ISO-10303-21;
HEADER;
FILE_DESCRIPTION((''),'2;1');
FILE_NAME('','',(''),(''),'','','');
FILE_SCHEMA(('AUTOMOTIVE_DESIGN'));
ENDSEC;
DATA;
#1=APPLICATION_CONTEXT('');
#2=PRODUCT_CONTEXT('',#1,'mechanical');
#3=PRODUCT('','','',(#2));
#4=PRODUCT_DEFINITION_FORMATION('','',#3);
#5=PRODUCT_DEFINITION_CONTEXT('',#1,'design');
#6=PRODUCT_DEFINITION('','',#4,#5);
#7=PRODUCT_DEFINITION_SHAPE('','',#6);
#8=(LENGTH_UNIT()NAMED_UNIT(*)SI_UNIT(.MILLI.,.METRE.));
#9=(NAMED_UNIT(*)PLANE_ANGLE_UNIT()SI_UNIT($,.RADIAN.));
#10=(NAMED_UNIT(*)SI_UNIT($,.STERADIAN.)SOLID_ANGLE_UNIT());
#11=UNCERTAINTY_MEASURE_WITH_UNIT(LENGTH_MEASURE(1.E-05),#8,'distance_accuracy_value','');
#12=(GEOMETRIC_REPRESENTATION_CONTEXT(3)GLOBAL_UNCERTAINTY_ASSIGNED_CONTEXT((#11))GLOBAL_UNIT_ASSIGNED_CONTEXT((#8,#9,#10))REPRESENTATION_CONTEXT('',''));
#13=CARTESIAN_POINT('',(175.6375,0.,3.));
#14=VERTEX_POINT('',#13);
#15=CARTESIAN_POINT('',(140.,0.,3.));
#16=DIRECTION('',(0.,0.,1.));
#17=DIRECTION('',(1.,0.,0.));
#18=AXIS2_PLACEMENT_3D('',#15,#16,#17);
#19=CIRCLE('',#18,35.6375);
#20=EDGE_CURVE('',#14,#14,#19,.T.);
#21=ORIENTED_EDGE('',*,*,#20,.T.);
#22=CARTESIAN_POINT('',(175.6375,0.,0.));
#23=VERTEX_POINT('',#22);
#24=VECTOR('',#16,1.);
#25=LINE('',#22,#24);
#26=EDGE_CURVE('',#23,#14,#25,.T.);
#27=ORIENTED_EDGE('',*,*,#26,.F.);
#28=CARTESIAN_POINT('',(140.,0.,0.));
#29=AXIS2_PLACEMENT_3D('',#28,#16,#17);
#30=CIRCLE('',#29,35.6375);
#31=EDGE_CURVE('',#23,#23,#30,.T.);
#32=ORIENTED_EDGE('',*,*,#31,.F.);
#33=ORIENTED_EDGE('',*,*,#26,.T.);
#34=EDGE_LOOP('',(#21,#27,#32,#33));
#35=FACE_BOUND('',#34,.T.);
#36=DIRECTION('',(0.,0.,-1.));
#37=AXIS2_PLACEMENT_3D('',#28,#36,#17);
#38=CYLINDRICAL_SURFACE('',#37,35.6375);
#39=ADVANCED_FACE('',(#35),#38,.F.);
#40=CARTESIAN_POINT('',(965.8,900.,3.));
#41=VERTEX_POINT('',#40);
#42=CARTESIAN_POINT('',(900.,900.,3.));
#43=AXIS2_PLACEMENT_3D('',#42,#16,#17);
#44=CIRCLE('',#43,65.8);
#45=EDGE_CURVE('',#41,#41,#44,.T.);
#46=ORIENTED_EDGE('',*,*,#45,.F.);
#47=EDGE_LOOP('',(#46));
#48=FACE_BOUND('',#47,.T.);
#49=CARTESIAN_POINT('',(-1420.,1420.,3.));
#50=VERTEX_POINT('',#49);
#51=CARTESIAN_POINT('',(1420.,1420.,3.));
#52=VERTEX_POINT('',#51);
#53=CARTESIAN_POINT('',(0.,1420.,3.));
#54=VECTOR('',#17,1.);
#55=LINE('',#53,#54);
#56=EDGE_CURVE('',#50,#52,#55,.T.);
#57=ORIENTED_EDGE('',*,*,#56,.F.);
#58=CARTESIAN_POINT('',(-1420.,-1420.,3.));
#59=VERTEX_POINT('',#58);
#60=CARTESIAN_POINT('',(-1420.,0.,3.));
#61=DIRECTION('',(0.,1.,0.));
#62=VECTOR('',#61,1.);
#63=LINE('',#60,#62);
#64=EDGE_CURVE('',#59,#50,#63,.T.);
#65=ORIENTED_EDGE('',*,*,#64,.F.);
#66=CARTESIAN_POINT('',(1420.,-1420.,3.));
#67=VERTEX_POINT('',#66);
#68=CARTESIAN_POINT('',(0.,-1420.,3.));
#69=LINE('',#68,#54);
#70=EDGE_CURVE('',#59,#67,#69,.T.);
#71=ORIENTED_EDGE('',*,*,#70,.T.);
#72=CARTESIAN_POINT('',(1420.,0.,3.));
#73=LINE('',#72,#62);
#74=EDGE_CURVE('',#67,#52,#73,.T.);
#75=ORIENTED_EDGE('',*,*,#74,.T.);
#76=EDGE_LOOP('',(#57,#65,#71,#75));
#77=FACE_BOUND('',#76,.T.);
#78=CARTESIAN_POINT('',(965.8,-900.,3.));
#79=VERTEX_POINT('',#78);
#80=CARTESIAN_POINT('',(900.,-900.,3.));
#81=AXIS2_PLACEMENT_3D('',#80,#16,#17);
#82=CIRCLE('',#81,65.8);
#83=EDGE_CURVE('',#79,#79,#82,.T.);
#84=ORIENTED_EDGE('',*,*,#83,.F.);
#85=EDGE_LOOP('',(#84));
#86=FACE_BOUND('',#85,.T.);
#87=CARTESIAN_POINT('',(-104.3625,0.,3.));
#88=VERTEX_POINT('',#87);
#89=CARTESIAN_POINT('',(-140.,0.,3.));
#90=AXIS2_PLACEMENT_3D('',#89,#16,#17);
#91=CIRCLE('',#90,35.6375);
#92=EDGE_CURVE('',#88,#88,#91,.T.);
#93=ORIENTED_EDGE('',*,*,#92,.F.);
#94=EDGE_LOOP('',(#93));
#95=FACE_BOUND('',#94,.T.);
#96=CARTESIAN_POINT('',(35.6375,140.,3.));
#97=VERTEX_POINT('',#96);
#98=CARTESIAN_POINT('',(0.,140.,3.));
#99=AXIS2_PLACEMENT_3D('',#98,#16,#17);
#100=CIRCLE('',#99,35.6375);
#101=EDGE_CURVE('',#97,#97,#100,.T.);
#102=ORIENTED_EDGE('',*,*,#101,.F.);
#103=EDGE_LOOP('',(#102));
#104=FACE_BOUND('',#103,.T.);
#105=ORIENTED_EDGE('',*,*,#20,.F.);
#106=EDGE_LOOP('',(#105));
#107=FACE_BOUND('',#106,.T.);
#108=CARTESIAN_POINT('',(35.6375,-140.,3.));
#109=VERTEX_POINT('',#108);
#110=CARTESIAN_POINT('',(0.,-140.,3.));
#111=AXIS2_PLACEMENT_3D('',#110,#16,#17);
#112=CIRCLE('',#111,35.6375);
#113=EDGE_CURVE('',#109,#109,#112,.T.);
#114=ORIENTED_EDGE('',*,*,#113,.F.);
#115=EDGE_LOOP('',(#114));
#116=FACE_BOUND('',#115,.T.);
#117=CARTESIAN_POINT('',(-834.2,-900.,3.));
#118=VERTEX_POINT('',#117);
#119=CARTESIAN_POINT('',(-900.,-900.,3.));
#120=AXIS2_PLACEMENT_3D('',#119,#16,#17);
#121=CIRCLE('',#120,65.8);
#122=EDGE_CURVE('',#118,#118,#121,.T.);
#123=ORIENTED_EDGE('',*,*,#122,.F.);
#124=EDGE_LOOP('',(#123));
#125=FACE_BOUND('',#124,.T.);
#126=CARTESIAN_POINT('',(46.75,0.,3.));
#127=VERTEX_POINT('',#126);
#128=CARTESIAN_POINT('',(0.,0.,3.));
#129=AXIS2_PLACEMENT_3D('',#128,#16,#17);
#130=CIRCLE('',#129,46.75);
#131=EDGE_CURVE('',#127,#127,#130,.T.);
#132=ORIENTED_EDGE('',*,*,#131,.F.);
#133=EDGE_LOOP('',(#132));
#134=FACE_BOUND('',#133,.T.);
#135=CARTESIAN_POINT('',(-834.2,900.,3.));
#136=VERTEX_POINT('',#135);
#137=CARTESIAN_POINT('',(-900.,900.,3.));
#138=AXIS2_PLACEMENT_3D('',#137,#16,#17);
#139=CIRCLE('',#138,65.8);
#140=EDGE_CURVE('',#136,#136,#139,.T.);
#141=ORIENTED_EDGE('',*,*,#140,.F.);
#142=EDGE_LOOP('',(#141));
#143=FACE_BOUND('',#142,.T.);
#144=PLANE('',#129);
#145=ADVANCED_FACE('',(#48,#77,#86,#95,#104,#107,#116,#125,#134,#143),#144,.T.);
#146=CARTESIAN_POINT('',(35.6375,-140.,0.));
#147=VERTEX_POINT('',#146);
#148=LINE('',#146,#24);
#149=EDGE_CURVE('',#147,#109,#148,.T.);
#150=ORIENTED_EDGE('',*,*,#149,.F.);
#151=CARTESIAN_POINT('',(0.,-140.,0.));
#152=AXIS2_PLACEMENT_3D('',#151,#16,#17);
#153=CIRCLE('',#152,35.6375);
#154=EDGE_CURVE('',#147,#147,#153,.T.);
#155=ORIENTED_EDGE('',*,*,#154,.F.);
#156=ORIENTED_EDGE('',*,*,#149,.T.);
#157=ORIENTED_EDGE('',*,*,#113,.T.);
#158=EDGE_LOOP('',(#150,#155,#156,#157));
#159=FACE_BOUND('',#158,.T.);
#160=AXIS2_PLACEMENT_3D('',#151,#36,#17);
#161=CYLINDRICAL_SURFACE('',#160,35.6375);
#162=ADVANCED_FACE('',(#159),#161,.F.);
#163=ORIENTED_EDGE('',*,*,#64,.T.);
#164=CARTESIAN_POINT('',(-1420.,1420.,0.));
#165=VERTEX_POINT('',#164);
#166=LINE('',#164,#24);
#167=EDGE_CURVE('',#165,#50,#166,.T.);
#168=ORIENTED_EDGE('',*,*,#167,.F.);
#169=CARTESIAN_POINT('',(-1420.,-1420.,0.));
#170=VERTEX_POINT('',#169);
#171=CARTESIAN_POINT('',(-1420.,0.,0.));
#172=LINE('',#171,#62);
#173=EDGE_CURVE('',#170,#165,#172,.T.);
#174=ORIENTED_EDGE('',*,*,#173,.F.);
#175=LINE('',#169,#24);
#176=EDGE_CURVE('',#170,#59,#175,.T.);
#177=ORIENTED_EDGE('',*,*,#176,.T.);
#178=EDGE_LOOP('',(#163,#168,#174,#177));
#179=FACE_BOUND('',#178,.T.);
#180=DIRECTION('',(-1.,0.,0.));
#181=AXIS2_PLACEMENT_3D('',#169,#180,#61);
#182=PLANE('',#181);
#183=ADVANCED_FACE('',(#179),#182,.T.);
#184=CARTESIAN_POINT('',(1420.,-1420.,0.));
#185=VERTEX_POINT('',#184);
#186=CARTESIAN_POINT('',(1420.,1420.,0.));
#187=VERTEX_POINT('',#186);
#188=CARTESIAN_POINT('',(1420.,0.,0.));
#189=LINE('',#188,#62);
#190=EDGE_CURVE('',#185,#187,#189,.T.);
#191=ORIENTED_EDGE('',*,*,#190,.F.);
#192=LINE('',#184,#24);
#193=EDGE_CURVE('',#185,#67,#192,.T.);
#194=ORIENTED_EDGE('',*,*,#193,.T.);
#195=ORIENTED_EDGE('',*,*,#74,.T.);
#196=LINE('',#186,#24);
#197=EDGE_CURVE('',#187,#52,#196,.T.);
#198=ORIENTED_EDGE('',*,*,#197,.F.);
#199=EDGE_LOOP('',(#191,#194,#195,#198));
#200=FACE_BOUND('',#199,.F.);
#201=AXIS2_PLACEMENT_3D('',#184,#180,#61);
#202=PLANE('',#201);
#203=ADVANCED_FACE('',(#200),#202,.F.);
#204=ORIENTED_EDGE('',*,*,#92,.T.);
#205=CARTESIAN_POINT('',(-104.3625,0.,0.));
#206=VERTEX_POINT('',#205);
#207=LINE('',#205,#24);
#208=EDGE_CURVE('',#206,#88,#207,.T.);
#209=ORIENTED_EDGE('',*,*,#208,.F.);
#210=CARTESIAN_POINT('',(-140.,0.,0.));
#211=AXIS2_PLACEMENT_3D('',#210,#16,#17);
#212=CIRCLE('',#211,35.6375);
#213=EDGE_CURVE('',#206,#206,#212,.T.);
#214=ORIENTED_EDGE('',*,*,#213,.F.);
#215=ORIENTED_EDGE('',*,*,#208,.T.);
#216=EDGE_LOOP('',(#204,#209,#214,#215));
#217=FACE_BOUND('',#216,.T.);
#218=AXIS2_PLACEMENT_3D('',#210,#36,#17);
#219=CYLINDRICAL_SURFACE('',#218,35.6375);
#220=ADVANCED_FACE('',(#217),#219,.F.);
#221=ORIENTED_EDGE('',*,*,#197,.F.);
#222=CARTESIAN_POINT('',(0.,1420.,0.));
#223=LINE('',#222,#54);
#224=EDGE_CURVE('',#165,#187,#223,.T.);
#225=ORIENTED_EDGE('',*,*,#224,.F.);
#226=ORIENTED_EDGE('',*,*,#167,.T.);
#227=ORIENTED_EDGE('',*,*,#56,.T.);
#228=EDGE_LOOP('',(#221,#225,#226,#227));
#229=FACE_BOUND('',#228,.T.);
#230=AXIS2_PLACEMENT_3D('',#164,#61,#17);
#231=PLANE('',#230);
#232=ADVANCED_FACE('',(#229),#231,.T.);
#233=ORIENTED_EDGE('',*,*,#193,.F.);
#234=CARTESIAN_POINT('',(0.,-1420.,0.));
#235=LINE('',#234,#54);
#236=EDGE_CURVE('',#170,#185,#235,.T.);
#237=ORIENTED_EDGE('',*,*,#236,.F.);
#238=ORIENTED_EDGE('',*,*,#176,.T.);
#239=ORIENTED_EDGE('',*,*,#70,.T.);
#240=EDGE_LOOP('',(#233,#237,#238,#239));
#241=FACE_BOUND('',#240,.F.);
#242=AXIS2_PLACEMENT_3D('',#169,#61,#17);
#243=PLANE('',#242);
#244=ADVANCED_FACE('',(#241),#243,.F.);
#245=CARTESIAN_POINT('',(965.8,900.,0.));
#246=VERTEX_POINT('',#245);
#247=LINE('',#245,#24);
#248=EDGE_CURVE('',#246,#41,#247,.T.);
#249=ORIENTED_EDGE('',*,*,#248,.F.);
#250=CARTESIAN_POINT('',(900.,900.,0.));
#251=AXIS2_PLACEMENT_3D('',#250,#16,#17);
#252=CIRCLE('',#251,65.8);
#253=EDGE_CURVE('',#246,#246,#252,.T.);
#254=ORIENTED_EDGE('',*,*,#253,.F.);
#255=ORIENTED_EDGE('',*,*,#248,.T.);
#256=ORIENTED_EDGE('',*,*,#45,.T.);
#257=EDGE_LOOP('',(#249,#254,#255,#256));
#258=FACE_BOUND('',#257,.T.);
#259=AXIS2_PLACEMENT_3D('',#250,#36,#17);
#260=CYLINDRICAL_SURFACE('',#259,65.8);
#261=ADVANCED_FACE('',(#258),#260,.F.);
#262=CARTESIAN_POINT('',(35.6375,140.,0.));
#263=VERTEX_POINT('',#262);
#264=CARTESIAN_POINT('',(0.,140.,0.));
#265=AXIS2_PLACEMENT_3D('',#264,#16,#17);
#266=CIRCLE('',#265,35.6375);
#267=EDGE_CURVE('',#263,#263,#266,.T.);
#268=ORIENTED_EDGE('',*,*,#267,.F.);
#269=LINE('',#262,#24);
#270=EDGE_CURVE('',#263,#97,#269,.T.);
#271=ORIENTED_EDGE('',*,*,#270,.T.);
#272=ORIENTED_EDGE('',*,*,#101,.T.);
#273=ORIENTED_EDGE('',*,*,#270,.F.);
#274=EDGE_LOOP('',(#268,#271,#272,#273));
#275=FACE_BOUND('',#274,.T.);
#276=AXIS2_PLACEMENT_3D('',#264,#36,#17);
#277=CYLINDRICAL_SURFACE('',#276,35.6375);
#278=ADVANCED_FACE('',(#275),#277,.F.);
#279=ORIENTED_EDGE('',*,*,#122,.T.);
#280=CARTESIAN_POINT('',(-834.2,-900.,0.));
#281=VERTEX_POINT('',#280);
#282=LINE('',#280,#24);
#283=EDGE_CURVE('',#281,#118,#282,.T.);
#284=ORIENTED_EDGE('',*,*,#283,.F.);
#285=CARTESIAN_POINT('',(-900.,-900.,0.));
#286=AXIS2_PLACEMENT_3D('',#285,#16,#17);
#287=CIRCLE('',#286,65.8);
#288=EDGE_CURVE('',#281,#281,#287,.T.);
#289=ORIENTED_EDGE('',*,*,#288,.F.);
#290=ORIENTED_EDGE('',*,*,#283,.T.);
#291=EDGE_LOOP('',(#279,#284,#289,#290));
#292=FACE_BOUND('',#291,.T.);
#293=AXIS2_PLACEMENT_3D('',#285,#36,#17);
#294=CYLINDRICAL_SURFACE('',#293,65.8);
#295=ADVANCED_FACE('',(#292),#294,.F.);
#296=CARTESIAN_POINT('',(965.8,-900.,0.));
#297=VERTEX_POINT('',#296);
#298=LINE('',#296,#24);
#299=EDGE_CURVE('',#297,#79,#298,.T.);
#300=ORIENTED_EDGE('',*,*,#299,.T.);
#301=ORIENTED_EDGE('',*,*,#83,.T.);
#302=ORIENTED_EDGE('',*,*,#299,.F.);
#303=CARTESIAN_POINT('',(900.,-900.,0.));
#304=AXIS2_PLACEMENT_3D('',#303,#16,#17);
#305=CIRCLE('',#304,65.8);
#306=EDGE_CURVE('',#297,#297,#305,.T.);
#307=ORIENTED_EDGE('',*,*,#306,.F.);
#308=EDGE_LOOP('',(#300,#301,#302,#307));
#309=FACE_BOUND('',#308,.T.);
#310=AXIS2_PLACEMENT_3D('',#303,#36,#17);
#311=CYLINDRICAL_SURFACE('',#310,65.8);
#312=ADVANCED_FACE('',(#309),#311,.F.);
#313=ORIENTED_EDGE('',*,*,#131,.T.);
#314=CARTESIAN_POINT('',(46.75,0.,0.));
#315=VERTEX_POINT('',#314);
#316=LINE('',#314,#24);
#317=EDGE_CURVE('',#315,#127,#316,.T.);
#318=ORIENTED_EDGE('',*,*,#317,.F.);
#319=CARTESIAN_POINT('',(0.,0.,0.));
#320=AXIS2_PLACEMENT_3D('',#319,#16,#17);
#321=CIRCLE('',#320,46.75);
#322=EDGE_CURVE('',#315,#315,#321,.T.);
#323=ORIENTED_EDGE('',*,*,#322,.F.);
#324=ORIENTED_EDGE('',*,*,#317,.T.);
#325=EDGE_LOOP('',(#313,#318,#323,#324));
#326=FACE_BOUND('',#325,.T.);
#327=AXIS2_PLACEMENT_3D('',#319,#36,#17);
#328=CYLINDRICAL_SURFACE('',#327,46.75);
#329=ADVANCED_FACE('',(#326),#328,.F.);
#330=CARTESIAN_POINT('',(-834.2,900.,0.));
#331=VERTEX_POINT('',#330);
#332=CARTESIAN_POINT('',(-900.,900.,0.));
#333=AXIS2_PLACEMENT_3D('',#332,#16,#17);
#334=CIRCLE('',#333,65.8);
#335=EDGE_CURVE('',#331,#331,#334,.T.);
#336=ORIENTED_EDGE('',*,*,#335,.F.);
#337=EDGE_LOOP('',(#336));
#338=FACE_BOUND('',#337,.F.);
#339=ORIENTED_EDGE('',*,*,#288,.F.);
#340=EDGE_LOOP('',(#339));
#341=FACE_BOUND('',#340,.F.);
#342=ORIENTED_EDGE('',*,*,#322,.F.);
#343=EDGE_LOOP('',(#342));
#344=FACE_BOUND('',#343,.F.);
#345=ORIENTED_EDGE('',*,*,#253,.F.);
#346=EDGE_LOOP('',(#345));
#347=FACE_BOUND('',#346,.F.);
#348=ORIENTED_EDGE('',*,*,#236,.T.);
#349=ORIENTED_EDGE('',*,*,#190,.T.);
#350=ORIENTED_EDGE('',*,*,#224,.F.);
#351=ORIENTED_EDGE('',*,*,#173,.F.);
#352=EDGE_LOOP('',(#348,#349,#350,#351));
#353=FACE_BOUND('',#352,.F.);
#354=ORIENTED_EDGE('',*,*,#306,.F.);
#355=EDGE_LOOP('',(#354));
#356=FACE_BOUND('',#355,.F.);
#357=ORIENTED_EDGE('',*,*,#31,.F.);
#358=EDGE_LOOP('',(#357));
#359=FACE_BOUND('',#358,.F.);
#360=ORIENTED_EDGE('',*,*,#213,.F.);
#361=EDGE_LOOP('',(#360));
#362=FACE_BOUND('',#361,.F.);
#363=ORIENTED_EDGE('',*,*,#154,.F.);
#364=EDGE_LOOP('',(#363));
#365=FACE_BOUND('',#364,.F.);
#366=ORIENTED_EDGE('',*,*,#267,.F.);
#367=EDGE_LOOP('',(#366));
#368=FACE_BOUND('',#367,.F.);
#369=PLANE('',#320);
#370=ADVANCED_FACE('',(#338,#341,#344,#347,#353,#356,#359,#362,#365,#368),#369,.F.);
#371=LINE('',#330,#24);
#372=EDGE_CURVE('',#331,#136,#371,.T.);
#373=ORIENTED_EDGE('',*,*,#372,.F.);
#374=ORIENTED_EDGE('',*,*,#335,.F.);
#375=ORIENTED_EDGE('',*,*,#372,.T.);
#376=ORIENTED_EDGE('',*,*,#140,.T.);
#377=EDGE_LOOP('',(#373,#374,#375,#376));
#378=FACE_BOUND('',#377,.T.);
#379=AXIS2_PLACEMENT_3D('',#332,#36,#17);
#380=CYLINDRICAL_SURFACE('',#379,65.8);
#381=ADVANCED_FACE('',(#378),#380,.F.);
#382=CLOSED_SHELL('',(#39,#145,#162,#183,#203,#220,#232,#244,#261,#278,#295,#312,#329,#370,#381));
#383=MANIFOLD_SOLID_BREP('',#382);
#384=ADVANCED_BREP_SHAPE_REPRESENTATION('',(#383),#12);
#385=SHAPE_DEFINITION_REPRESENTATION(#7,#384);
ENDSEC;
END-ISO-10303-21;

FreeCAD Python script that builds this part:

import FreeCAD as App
import Part
import Sketcher

V = App.Vector


def add_polygon(sketch, points):
    """Adds a closed chain of lines whose ends are joined by coincident constraints."""
    first, n = sketch.GeometryCount, len(points)
    for a, b in zip(points, points[1:] + points[:1]):
        sketch.addGeometry(Part.LineSegment(App.Vector(*a, 0), App.Vector(*b, 0)), False)
    for i in range(n):
        sketch.addConstraint(Sketcher.Constraint("Coincident", first + i, 2, first + (i + 1) % n, 1))

doc = App.newDocument("Part")
body = doc.addObject("PartDesign::Body", "Body")

sketch1 = body.newObject("Sketcher::SketchObject", "Sketch")
sketch1.AttachmentSupport = (doc.getObject("XY_Plane"), [""])
sketch1.MapMode = "FlatFace"
add_polygon(sketch1, [(-1420, 1420), (-1420, -1420), (1420, -1420), (1420, 1420)])
sketch1.addGeometry(Part.Circle(V(-900, -900, 0), V(0, 0, 1), 66), False)
sketch1.addGeometry(Part.Circle(V(900, -900, 0), V(0, 0, 1), 66), False)
sketch1.addGeometry(Part.Circle(V(0, -140, 0), V(0, 0, 1), 36), False)
sketch1.addGeometry(Part.Circle(V(-140, 0, 0), V(0, 0, 1), 36), False)
sketch1.addGeometry(Part.Circle(V(-900, 900, 0), V(0, 0, 1), 66), False)
sketch1.addGeometry(Part.Circle(V(0, 0, 0), V(0, 0, 1), 47), False)
sketch1.addGeometry(Part.Circle(V(140, 0, 0), V(0, 0, 1), 36), False)
sketch1.addGeometry(Part.Circle(V(0, 140, 0), V(0, 0, 1), 36), False)
sketch1.addGeometry(Part.Circle(V(900, 900, 0), V(0, 0, 1), 66), False)
sketch1.addConstraint([
    Sketcher.Constraint("Vertical", 0),
    Sketcher.Constraint("Horizontal", 1),
    Sketcher.Constraint("Vertical", 2),
    Sketcher.Constraint("Horizontal", 3),
    Sketcher.Constraint("Coincident", 9, 3, -1, 1),
    Sketcher.Constraint("Equal", 4, 5),
    Sketcher.Constraint("Equal", 6, 7),
    Sketcher.Constraint("Equal", 5, 8),
    Sketcher.Constraint("Equal", 7, 10),
    Sketcher.Constraint("Equal", 10, 11),
    Sketcher.Constraint("Equal", 8, 12),
    Sketcher.Constraint("Symmetric", 5, 3, 8, 3, -1, 1),
    Sketcher.Constraint("Symmetric", 7, 3, 10, 3, -1, 1),
    Sketcher.Constraint("Symmetric", 6, 3, 11, 3, -1, 1),
    Sketcher.Constraint("Symmetric", 4, 3, 12, 3, -1, 1),
    Sketcher.Constraint("Symmetric", 0, 2, 2, 2, -1, 1),
    Sketcher.Constraint("Symmetric", 4, 3, 5, 3, -2),
    Sketcher.Constraint("PointOnObject", 6, 3, -2),
    Sketcher.Constraint("PointOnObject", 7, 3, -1),
    Sketcher.Constraint("Equal", 3, 0),
    Sketcher.Constraint("Diameter", 4, 131.6),
    Sketcher.Constraint("Diameter", 9, 93.5),
    Sketcher.Constraint("DistanceX", 1, 1, 1, 2, 2840.0),
    Sketcher.Constraint("Diameter", 6, 71.275),
    Sketcher.Constraint("DistanceX", 4, 3, -1, 1, 900.0),
    Sketcher.Constraint("DistanceY", 4, 3, -1, 1, 900.0),
    Sketcher.Constraint("DistanceY", 6, 3, -1, 1, 140.0),
    Sketcher.Constraint("DistanceX", 7, 3, -1, 1, 140.0),
])
pad1 = body.newObject("PartDesign::Pad", "Pad")
pad1.Profile = sketch1
pad1.Length = 3

doc.recompute()
